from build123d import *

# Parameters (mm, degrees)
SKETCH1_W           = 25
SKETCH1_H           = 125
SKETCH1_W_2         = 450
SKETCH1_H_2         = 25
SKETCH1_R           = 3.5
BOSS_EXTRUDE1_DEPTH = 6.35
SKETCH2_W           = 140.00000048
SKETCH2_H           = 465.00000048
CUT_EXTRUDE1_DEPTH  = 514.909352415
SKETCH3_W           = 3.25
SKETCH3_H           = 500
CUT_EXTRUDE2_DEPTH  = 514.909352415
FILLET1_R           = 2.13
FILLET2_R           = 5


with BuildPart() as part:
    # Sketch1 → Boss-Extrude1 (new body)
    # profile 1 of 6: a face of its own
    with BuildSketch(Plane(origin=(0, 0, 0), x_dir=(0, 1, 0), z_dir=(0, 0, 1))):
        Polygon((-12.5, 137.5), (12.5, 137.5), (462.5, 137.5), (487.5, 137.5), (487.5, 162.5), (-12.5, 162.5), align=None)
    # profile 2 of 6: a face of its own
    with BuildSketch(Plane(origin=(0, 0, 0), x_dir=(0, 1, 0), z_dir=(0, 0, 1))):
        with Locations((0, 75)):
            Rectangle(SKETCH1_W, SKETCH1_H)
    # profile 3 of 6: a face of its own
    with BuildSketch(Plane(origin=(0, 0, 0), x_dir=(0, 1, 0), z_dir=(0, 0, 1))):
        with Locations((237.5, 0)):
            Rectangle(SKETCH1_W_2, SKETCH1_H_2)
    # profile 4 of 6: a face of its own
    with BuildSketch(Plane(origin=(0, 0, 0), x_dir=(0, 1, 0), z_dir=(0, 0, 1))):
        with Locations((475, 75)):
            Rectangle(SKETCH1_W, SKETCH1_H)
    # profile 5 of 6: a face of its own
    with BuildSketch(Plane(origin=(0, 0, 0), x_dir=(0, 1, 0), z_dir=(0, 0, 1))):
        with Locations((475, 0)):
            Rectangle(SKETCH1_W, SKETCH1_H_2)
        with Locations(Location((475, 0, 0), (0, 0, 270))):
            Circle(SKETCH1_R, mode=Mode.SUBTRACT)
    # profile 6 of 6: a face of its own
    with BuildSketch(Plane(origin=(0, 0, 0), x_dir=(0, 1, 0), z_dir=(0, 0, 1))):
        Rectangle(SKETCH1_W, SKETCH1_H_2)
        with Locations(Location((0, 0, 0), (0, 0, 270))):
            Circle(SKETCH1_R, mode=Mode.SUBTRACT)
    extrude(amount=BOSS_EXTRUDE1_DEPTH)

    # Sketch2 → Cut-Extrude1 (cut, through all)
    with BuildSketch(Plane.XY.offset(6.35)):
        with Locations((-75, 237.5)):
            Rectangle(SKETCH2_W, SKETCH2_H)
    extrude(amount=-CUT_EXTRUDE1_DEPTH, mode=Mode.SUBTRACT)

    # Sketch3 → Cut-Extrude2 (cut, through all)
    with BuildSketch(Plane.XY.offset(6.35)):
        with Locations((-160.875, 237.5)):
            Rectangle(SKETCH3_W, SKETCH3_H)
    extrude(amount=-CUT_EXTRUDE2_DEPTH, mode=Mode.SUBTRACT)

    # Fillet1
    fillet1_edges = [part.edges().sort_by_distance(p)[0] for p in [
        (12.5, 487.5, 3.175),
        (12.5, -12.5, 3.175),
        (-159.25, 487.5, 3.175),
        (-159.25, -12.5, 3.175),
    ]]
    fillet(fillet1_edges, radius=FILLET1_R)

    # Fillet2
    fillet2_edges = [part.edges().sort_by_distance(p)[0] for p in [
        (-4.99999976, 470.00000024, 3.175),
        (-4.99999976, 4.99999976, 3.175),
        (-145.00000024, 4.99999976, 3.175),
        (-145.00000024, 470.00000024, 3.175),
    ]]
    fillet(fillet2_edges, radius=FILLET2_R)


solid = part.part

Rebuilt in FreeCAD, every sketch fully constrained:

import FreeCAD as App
import Part
import Sketcher

V = App.Vector
Q = App.Units.Quantity


def edges_at(feature, points):
    """Names of the edges that pass closest to the given points."""
    edges = feature.Shape.Edges
    near = lambda p: min(range(len(edges)), key=lambda i: edges[i].distToShape(Part.Vertex(*p))[0])
    return sorted({f"Edge{near(p) + 1}" for p in points})

doc = App.newDocument("Part")
params = doc.addObject("Spreadsheet::Sheet", "Params")
for row, (alias, value) in enumerate([
    ("sketch1_diameter", "7 mm"),
    ("sketch1_width", "175 mm"),
    ("sketch1_width2", "125 mm"),
    ("sketch1_height", "500 mm"),
    ("sketch1_height2", "450 mm"),
    ("pad1_length", "6.35 mm"),
    ("sketch2_width", "140 mm"),
    ("sketch2_height", "465 mm"),
    ("sketch3_height", "500 mm"),
    ("sketch3_width", "3.25 mm"),
    ("fillet_radius", "2.13 mm"),
    ("fillet2_radius", "5 mm"),
], start=1):
    params.set(f"A{row}", alias)
    params.set(f"B{row}", "=" + value)
    params.setAlias(f"B{row}", alias)

body = doc.addObject("PartDesign::Body", "Body")

sketch1 = body.newObject("Sketcher::SketchObject", "Sketch")
sketch1.AttachmentSupport = (doc.getObject("XY_Plane"), [""])
sketch1.MapMode = "FlatFace"
sketch1.addGeometry(Part.LineSegment(V(-162.5, 487.5, 0), V(-162.5, -12.5, 0)), False)
sketch1.addGeometry(Part.LineSegment(V(-162.5, -12.5, 0), V(12.5, -12.5, 0)), False)
sketch1.addGeometry(Part.LineSegment(V(12.5, -12.5, 0), V(12.5, 487.5, 0)), False)
sketch1.addGeometry(Part.LineSegment(V(12.5, 487.5, 0), V(-162.5, 487.5, 0)), False)
sketch1.addGeometry(Part.LineSegment(V(-137.5, 12.5, 0), V(-137.5, 462.5, 0)), False)
sketch1.addGeometry(Part.LineSegment(V(-137.5, 462.5, 0), V(-12.5, 462.5, 0)), False)
sketch1.addGeometry(Part.LineSegment(V(-12.5, 462.5, 0), V(-12.5, 12.5, 0)), False)
sketch1.addGeometry(Part.LineSegment(V(-12.5, 12.5, 0), V(-137.5, 12.5, 0)), False)
sketch1.addGeometry(Part.Circle(V(0, 0, 0), V(0, 0, 1), 3.5), False)
sketch1.addGeometry(Part.Circle(V(0, 475, 0), V(0, 0, 1), 3.5), False)
sketch1.addConstraint(Sketcher.Constraint("Coincident", 0, 2, 1, 1))
sketch1.addConstraint(Sketcher.Constraint("Coincident", 1, 2, 2, 1))
sketch1.addConstraint(Sketcher.Constraint("Coincident", 2, 2, 3, 1))
sketch1.addConstraint(Sketcher.Constraint("Coincident", 3, 2, 0, 1))
sketch1.addConstraint(Sketcher.Constraint("Coincident", 4, 2, 5, 1))
sketch1.addConstraint(Sketcher.Constraint("Coincident", 5, 2, 6, 1))
sketch1.addConstraint(Sketcher.Constraint("Coincident", 6, 2, 7, 1))
sketch1.addConstraint(Sketcher.Constraint("Coincident", 7, 2, 4, 1))
sketch1.addConstraint(Sketcher.Constraint("Vertical", 0))
sketch1.addConstraint(Sketcher.Constraint("Horizontal", 1))
sketch1.addConstraint(Sketcher.Constraint("Vertical", 2))
sketch1.addConstraint(Sketcher.Constraint("Horizontal", 3))
sketch1.addConstraint(Sketcher.Constraint("Vertical", 4))
sketch1.addConstraint(Sketcher.Constraint("Horizontal", 5))
sketch1.addConstraint(Sketcher.Constraint("Vertical", 6))
sketch1.addConstraint(Sketcher.Constraint("Horizontal", 7))
sketch1.addConstraint(Sketcher.Constraint("Coincident", 8, 3, -1, 1))
sketch1.addConstraint(Sketcher.Constraint("Equal", 8, 9))
sketch1.addConstraint(Sketcher.Constraint("Symmetric", 1, 2, 6, 2, -1, 1))
sketch1.addConstraint(Sketcher.Constraint("PointOnObject", 9, 3, -2))
sketch1.addConstraint(Sketcher.Constraint("Diameter", 8, Q("7 mm")))
sketch1.addConstraint(Sketcher.Constraint("DistanceX", 1, 1, 1, 2, Q("175 mm")))
sketch1.addConstraint(Sketcher.Constraint("DistanceX", 5, 1, 5, 2, Q("125 mm")))
sketch1.addConstraint(Sketcher.Constraint("DistanceY", 0, 2, 0, 1, Q("500 mm")))
sketch1.addConstraint(Sketcher.Constraint("DistanceY", 4, 1, 4, 2, Q("450 mm")))
sketch1.addConstraint(Sketcher.Constraint("DistanceY", -1, 1, 9, 3, Q("475 mm")))
sketch1.addConstraint(Sketcher.Constraint("DistanceX", 3, 2, 4, 2, Q("25 mm")))
sketch1.addConstraint(Sketcher.Constraint("DistanceY", 4, 2, 3, 2, Q("25 mm")))
sketch1.setExpression("Constraints[20]", "Params.sketch1_diameter")
sketch1.setExpression("Constraints[21]", "Params.sketch1_width")
sketch1.setExpression("Constraints[22]", "Params.sketch1_width2")
sketch1.setExpression("Constraints[23]", "Params.sketch1_height")
sketch1.setExpression("Constraints[24]", "Params.sketch1_height2")
pad1 = body.newObject("PartDesign::Pad", "Pad")
pad1.Profile = sketch1
pad1.setExpression("Length", "Params.pad1_length")

sketch2 = body.newObject("Sketcher::SketchObject", "Sketch001")
sketch2.AttachmentSupport = (doc.getObject("XY_Plane"), [""])
sketch2.MapMode = "FlatFace"
sketch2.AttachmentOffset = App.Placement(V(0, 0, 6.35), App.Rotation())
sketch2.addGeometry(Part.LineSegment(V(-145, 470, 0), V(-145, 5, 0)), False)
sketch2.addGeometry(Part.LineSegment(V(-145, 5, 0), V(-5, 5, 0)), False)
sketch2.addGeometry(Part.LineSegment(V(-5, 5, 0), V(-5, 470, 0)), False)
sketch2.addGeometry(Part.LineSegment(V(-5, 470, 0), V(-145, 470, 0)), False)
sketch2.addConstraint(Sketcher.Constraint("Coincident", 0, 2, 1, 1))
sketch2.addConstraint(Sketcher.Constraint("Coincident", 1, 2, 2, 1))
sketch2.addConstraint(Sketcher.Constraint("Coincident", 2, 2, 3, 1))
sketch2.addConstraint(Sketcher.Constraint("Coincident", 3, 2, 0, 1))
sketch2.addConstraint(Sketcher.Constraint("Vertical", 0))
sketch2.addConstraint(Sketcher.Constraint("Horizontal", 1))
sketch2.addConstraint(Sketcher.Constraint("Vertical", 2))
sketch2.addConstraint(Sketcher.Constraint("Horizontal", 3))
sketch2.addConstraint(Sketcher.Constraint("DistanceX", 1, 1, 1, 2, Q("140 mm")))
sketch2.addConstraint(Sketcher.Constraint("DistanceY", 0, 2, 0, 1, Q("465 mm")))
sketch2.addConstraint(Sketcher.Constraint("DistanceX", 0, 2, -1, 1, Q("145 mm")))
sketch2.addConstraint(Sketcher.Constraint("DistanceY", -1, 1, 0, 2, Q("5 mm")))
sketch2.setExpression("Constraints[8]", "Params.sketch2_width")
sketch2.setExpression("Constraints[9]", "Params.sketch2_height")
pocket1 = body.newObject("PartDesign::Pocket", "Pocket")
pocket1.Profile = sketch2
pocket1.Type = "ThroughAll"

sketch3 = body.newObject("Sketcher::SketchObject", "Sketch002")
sketch3.AttachmentSupport = (doc.getObject("XY_Plane"), [""])
sketch3.MapMode = "FlatFace"
sketch3.AttachmentOffset = App.Placement(V(0, 0, 6.35), App.Rotation())
sketch3.addGeometry(Part.LineSegment(V(-162.5, 487.5, 0), V(-162.5, -12.5, 0)), False)
sketch3.addGeometry(Part.LineSegment(V(-162.5, -12.5, 0), V(-159.2, -12.5, 0)), False)
sketch3.addGeometry(Part.LineSegment(V(-159.2, -12.5, 0), V(-159.2, 487.5, 0)), False)
sketch3.addGeometry(Part.LineSegment(V(-159.2, 487.5, 0), V(-162.5, 487.5, 0)), False)
sketch3.addConstraint(Sketcher.Constraint("Coincident", 0, 2, 1, 1))
sketch3.addConstraint(Sketcher.Constraint("Coincident", 1, 2, 2, 1))
sketch3.addConstraint(Sketcher.Constraint("Coincident", 2, 2, 3, 1))
sketch3.addConstraint(Sketcher.Constraint("Coincident", 3, 2, 0, 1))
sketch3.addConstraint(Sketcher.Constraint("Vertical", 0))
sketch3.addConstraint(Sketcher.Constraint("Horizontal", 1))
sketch3.addConstraint(Sketcher.Constraint("Vertical", 2))
sketch3.addConstraint(Sketcher.Constraint("Horizontal", 3))
sketch3.addConstraint(Sketcher.Constraint("DistanceY", 0, 2, 0, 1, Q("500 mm")))
sketch3.addConstraint(Sketcher.Constraint("DistanceX", 1, 1, 1, 2, Q("3.25 mm")))
sketch3.addConstraint(Sketcher.Constraint("DistanceX", 0, 2, -1, 1, Q("162.5 mm")))
sketch3.addConstraint(Sketcher.Constraint("DistanceY", 0, 2, -1, 1, Q("12.5 mm")))
sketch3.setExpression("Constraints[8]", "Params.sketch3_height")
sketch3.setExpression("Constraints[9]", "Params.sketch3_width")
pocket2 = body.newObject("PartDesign::Pocket", "Pocket001")
pocket2.Profile = sketch3
pocket2.Type = "ThroughAll"
doc.recompute()

fillet = body.newObject("PartDesign::Fillet", "Fillet")
fillet.Base = (pocket2, edges_at(pocket2, [
    (12.5, 487.5, 3.175),
    (12.5, -12.5, 3.175),
    (-159.25, 487.5, 3.175),
    (-159.25, -12.5, 3.175),
]))
fillet.setExpression("Radius", "Params.fillet_radius")
doc.recompute()

fillet2 = body.newObject("PartDesign::Fillet", "Fillet001")
fillet2.Base = (fillet, edges_at(fillet, [
    (-5, 470, 3.175),
    (-5, 5, 3.175),
    (-145, 5, 3.175),
    (-145, 470, 3.175),
]))
fillet2.setExpression("Radius", "Params.fillet2_radius")

doc.recompute()
